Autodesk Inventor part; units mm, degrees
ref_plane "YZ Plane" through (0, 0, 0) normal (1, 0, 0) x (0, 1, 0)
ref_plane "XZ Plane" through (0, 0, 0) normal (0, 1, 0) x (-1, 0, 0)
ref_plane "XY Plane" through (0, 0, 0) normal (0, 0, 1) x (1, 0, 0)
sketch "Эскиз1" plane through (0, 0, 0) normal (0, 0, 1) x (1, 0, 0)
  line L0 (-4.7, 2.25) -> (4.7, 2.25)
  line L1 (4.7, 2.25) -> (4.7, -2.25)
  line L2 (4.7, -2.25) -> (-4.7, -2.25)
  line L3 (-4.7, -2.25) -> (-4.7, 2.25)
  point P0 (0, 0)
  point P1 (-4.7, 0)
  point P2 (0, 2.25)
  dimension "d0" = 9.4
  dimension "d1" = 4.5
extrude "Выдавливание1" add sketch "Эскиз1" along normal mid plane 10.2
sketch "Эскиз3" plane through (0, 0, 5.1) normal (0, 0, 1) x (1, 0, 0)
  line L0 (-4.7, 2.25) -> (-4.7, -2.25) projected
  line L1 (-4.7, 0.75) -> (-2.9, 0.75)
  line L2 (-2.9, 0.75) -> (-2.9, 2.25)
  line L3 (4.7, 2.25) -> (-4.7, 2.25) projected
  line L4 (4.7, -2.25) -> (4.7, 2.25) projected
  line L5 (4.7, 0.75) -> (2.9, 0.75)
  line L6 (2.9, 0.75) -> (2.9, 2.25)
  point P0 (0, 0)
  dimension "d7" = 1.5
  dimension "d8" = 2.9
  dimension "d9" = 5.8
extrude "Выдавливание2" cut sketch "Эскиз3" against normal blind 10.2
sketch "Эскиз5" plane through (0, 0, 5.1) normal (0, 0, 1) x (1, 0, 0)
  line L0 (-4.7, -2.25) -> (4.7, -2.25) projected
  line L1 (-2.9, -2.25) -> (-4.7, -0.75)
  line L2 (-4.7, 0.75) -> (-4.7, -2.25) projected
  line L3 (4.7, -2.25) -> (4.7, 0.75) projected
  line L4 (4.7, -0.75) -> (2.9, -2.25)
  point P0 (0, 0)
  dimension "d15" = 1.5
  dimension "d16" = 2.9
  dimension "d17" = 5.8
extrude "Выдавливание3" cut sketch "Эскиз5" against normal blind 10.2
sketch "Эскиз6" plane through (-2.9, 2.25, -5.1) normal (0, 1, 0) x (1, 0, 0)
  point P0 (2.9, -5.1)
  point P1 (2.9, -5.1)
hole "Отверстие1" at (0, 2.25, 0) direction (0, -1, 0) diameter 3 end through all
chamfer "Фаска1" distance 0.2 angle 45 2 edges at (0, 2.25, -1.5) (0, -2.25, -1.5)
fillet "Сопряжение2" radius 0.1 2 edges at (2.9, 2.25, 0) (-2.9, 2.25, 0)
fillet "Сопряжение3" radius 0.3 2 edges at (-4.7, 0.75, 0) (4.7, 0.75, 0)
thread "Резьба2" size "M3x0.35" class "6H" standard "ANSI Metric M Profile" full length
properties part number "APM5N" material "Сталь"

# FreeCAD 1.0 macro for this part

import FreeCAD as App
import Part
import Sketcher

V = App.Vector


def edges_at(feature, points):
    """Names of the edges that pass closest to the given points."""
    edges = feature.Shape.Edges
    near = lambda p: min(range(len(edges)), key=lambda i: edges[i].distToShape(Part.Vertex(*p))[0])
    return sorted({f"Edge{near(p) + 1}" for p in points})

doc = App.newDocument("Part")
params = doc.addObject("Spreadsheet::Sheet", "Params")
for row, (alias, value) in enumerate([
    ("sketch1_width", "9.4 mm"),
    ("sketch1_height", "4.5 mm"),
    ("pad1_length", "10.2 mm"),
    ("sketch2_height", "1.5 mm"),
    ("sketch2_width", "1.8 mm"),
    ("pocket1_length", "10.2 mm"),
    ("sketch3_height", "1.5 mm"),
    ("sketch3_width", "1.8 mm"),
    ("pocket2_length", "10.2 mm"),
    ("sketch4_diameter", "3 mm"),
    ("hole_diameter", "3 mm"),
    ("chamfer_size", "0.2 mm"),
    ("fillet_radius", "0.1 mm"),
    ("fillet2_radius", "0.3 mm"),
], start=1):
    params.set(f"A{row}", alias)
    params.set(f"B{row}", "=" + value)
    params.setAlias(f"B{row}", alias)

body = doc.addObject("PartDesign::Body", "Body")

sketch1 = body.newObject("Sketcher::SketchObject", "Sketch")
sketch1.AttachmentSupport = (doc.getObject("XY_Plane"), [""])
sketch1.MapMode = "FlatFace"
sketch1.addGeometry(Part.LineSegment(V(4.7, 2.2, 0), V(-4.7, 2.2, 0)), False)
sketch1.addGeometry(Part.LineSegment(V(-4.7, 2.2, 0), V(-4.7, -2.2, 0)), False)
sketch1.addGeometry(Part.LineSegment(V(-4.7, -2.2, 0), V(4.7, -2.2, 0)), False)
sketch1.addGeometry(Part.LineSegment(V(4.7, -2.2, 0), V(4.7, 2.2, 0)), False)
sketch1.addConstraint(Sketcher.Constraint("Coincident", 0, 2, 1, 1))
sketch1.addConstraint(Sketcher.Constraint("Coincident", 1, 2, 2, 1))
sketch1.addConstraint(Sketcher.Constraint("Coincident", 2, 2, 3, 1))
sketch1.addConstraint(Sketcher.Constraint("Coincident", 3, 2, 0, 1))
sketch1.addConstraint(Sketcher.Constraint("Horizontal", 0))
sketch1.addConstraint(Sketcher.Constraint("Vertical", 1))
sketch1.addConstraint(Sketcher.Constraint("Horizontal", 2))
sketch1.addConstraint(Sketcher.Constraint("Vertical", 3))
sketch1.addConstraint(Sketcher.Constraint("Symmetric", 0, 2, 2, 2, -1, 1))
sketch1.addConstraint(Sketcher.Constraint("DistanceX", 0, 2, 0, 1, 9.4))
sketch1.addConstraint(Sketcher.Constraint("DistanceY", 1, 2, 1, 1, 4.5))
sketch1.setExpression("Constraints[9]", "Params.sketch1_width")
sketch1.setExpression("Constraints[10]", "Params.sketch1_height")
pad1 = body.newObject("PartDesign::Pad", "Pad")
pad1.Profile = sketch1
pad1.setExpression("Length", "Params.pad1_length")
pad1.Midplane = True

sketch2 = body.newObject("Sketcher::SketchObject", "Sketch001")
sketch2.AttachmentSupport = (doc.getObject("XY_Plane"), [""])
sketch2.MapMode = "FlatFace"
sketch2.AttachmentOffset = App.Placement(V(0, 0, 5.1), App.Rotation())
sketch2.addGeometry(Part.LineSegment(V(-2.9, 2.2, 0), V(-4.7, 2.2, 0)), False)
sketch2.addGeometry(Part.LineSegment(V(-4.7, 2.2, 0), V(-4.7, 0.8, 0)), False)
sketch2.addGeometry(Part.LineSegment(V(-4.7, 0.8, 0), V(-2.9, 0.8, 0)), False)
sketch2.addGeometry(Part.LineSegment(V(-2.9, 0.8, 0), V(-2.9, 2.2, 0)), False)
sketch2.addGeometry(Part.LineSegment(V(4.7, 2.2, 0), V(2.9, 2.2, 0)), False)
sketch2.addGeometry(Part.LineSegment(V(2.9, 2.2, 0), V(2.9, 0.8, 0)), False)
sketch2.addGeometry(Part.LineSegment(V(2.9, 0.8, 0), V(4.7, 0.8, 0)), False)
sketch2.addGeometry(Part.LineSegment(V(4.7, 0.8, 0), V(4.7, 2.2, 0)), False)
sketch2.addConstraint(Sketcher.Constraint("Coincident", 0, 2, 1, 1))
sketch2.addConstraint(Sketcher.Constraint("Coincident", 1, 2, 2, 1))
sketch2.addConstraint(Sketcher.Constraint("Coincident", 2, 2, 3, 1))
sketch2.addConstraint(Sketcher.Constraint("Coincident", 3, 2, 0, 1))
sketch2.addConstraint(Sketcher.Constraint("Coincident", 4, 2, 5, 1))
sketch2.addConstraint(Sketcher.Constraint("Coincident", 5, 2, 6, 1))
sketch2.addConstraint(Sketcher.Constraint("Coincident", 6, 2, 7, 1))
sketch2.addConstraint(Sketcher.Constraint("Coincident", 7, 2, 4, 1))
sketch2.addConstraint(Sketcher.Constraint("Horizontal", 0))
sketch2.addConstraint(Sketcher.Constraint("Vertical", 1))
sketch2.addConstraint(Sketcher.Constraint("Horizontal", 2))
sketch2.addConstraint(Sketcher.Constraint("Vertical", 3))
sketch2.addConstraint(Sketcher.Constraint("Horizontal", 4))
sketch2.addConstraint(Sketcher.Constraint("Vertical", 5))
sketch2.addConstraint(Sketcher.Constraint("Horizontal", 6))
sketch2.addConstraint(Sketcher.Constraint("Vertical", 7))
sketch2.addConstraint(Sketcher.Constraint("Symmetric", 3, 2, 4, 2, -2))
sketch2.addConstraint(Sketcher.Constraint("Symmetric", 1, 2, 6, 2, -2))
sketch2.addConstraint(Sketcher.Constraint("DistanceY", 1, 2, 1, 1, 1.5))
sketch2.addConstraint(Sketcher.Constraint("DistanceX", 2, 2, -1, 1, 2.9))
sketch2.addConstraint(Sketcher.Constraint("DistanceX", 0, 2, 0, 1, 1.8))
sketch2.addConstraint(Sketcher.Constraint("DistanceY", -1, 1, 0, 2, 2.25))
sketch2.setExpression("Constraints[18]", "Params.sketch2_height")
sketch2.setExpression("Constraints[20]", "Params.sketch2_width")
pocket1 = body.newObject("PartDesign::Pocket", "Pocket")
pocket1.Profile = sketch2
pocket1.setExpression("Length", "Params.pocket1_length")

sketch3 = body.newObject("Sketcher::SketchObject", "Sketch002")
sketch3.AttachmentSupport = (doc.getObject("XY_Plane"), [""])
sketch3.MapMode = "FlatFace"
sketch3.AttachmentOffset = App.Placement(V(0, 0, 5.1), App.Rotation())
sketch3.addGeometry(Part.LineSegment(V(-4.7, -0.8, 0), V(-4.7, -2.2, 0)), False)
sketch3.addGeometry(Part.LineSegment(V(-4.7, -2.2, 0), V(-2.9, -2.2, 0)), False)
sketch3.addGeometry(Part.LineSegment(V(-2.9, -2.2, 0), V(-4.7, -0.8, 0)), False)
sketch3.addGeometry(Part.LineSegment(V(4.7, -0.8, 0), V(2.9, -2.2, 0)), False)
sketch3.addGeometry(Part.LineSegment(V(2.9, -2.2, 0), V(4.7, -2.2, 0)), False)
sketch3.addGeometry(Part.LineSegment(V(4.7, -2.2, 0), V(4.7, -0.8, 0)), False)
sketch3.addConstraint(Sketcher.Constraint("Coincident", 0, 2, 1, 1))
sketch3.addConstraint(Sketcher.Constraint("Coincident", 1, 2, 2, 1))
sketch3.addConstraint(Sketcher.Constraint("Coincident", 2, 2, 0, 1))
sketch3.addConstraint(Sketcher.Constraint("Coincident", 3, 2, 4, 1))
sketch3.addConstraint(Sketcher.Constraint("Coincident", 4, 2, 5, 1))
sketch3.addConstraint(Sketcher.Constraint("Coincident", 5, 2, 3, 1))
sketch3.addConstraint(Sketcher.Constraint("Vertical", 0))
sketch3.addConstraint(Sketcher.Constraint("Horizontal", 1))
sketch3.addConstraint(Sketcher.Constraint("Horizontal", 4))
sketch3.addConstraint(Sketcher.Constraint("Vertical", 5))
sketch3.addConstraint(Sketcher.Constraint("Symmetric", 1, 2, 3, 2, -2))
sketch3.addConstraint(Sketcher.Constraint("Symmetric", 2, 2, 5, 2, -2))
sketch3.addConstraint(Sketcher.Constraint("DistanceY", 0, 2, 0, 1, 1.5))
sketch3.addConstraint(Sketcher.Constraint("DistanceX", 1, 2, -1, 1, 2.9))
sketch3.addConstraint(Sketcher.Constraint("DistanceX", 1, 1, 1, 2, 1.8))
sketch3.addConstraint(Sketcher.Constraint("DistanceY", 0, 2, -1, 1, 2.25))
sketch3.setExpression("Constraints[12]", "Params.sketch3_height")
sketch3.setExpression("Constraints[14]", "Params.sketch3_width")
pocket2 = body.newObject("PartDesign::Pocket", "Pocket001")
pocket2.Profile = sketch3
pocket2.setExpression("Length", "Params.pocket2_length")

sketch4 = body.newObject("Sketcher::SketchObject", "Sketch003")
sketch4.AttachmentSupport = (doc.getObject("XZ_Plane"), [""])
sketch4.MapMode = "FlatFace"
sketch4.AttachmentOffset = App.Placement(V(0, 0, -2.25), App.Rotation())
sketch4.addGeometry(Part.Circle(V(0, 0, 0), V(0, 0, 1), 1.5), False)
sketch4.addConstraint(Sketcher.Constraint("Coincident", 0, 3, -1, 1))
sketch4.addConstraint(Sketcher.Constraint("Diameter", 0, 3.0))
sketch4.setExpression("Constraints[1]", "Params.sketch4_diameter")
doc.recompute()
hole = body.newObject("PartDesign::Hole", "Hole")
hole.Profile = sketch4
hole.ThreadType = "None"
hole.setExpression("Diameter", "Params.hole_diameter")
hole.DepthType = "ThroughAll"
hole.Reversed = True
doc.recompute()

chamfer = body.newObject("PartDesign::Chamfer", "Chamfer")
chamfer.Base = (hole, edges_at(hole, [(0, 2.25, -1.5), (0, -2.25, -1.5)]))
chamfer.setExpression("Size", "Params.chamfer_size")
doc.recompute()

fillet = body.newObject("PartDesign::Fillet", "Fillet")
fillet.Base = (chamfer, edges_at(chamfer, [(2.9, 2.25, 0), (-2.9, 2.25, 0)]))
fillet.setExpression("Radius", "Params.fillet_radius")
doc.recompute()

fillet2 = body.newObject("PartDesign::Fillet", "Fillet001")
fillet2.Base = (fillet, edges_at(fillet, [(-4.7, 0.75, 0), (4.7, 0.75, 0)]))
fillet2.setExpression("Radius", "Params.fillet2_radius")

doc.recompute()
